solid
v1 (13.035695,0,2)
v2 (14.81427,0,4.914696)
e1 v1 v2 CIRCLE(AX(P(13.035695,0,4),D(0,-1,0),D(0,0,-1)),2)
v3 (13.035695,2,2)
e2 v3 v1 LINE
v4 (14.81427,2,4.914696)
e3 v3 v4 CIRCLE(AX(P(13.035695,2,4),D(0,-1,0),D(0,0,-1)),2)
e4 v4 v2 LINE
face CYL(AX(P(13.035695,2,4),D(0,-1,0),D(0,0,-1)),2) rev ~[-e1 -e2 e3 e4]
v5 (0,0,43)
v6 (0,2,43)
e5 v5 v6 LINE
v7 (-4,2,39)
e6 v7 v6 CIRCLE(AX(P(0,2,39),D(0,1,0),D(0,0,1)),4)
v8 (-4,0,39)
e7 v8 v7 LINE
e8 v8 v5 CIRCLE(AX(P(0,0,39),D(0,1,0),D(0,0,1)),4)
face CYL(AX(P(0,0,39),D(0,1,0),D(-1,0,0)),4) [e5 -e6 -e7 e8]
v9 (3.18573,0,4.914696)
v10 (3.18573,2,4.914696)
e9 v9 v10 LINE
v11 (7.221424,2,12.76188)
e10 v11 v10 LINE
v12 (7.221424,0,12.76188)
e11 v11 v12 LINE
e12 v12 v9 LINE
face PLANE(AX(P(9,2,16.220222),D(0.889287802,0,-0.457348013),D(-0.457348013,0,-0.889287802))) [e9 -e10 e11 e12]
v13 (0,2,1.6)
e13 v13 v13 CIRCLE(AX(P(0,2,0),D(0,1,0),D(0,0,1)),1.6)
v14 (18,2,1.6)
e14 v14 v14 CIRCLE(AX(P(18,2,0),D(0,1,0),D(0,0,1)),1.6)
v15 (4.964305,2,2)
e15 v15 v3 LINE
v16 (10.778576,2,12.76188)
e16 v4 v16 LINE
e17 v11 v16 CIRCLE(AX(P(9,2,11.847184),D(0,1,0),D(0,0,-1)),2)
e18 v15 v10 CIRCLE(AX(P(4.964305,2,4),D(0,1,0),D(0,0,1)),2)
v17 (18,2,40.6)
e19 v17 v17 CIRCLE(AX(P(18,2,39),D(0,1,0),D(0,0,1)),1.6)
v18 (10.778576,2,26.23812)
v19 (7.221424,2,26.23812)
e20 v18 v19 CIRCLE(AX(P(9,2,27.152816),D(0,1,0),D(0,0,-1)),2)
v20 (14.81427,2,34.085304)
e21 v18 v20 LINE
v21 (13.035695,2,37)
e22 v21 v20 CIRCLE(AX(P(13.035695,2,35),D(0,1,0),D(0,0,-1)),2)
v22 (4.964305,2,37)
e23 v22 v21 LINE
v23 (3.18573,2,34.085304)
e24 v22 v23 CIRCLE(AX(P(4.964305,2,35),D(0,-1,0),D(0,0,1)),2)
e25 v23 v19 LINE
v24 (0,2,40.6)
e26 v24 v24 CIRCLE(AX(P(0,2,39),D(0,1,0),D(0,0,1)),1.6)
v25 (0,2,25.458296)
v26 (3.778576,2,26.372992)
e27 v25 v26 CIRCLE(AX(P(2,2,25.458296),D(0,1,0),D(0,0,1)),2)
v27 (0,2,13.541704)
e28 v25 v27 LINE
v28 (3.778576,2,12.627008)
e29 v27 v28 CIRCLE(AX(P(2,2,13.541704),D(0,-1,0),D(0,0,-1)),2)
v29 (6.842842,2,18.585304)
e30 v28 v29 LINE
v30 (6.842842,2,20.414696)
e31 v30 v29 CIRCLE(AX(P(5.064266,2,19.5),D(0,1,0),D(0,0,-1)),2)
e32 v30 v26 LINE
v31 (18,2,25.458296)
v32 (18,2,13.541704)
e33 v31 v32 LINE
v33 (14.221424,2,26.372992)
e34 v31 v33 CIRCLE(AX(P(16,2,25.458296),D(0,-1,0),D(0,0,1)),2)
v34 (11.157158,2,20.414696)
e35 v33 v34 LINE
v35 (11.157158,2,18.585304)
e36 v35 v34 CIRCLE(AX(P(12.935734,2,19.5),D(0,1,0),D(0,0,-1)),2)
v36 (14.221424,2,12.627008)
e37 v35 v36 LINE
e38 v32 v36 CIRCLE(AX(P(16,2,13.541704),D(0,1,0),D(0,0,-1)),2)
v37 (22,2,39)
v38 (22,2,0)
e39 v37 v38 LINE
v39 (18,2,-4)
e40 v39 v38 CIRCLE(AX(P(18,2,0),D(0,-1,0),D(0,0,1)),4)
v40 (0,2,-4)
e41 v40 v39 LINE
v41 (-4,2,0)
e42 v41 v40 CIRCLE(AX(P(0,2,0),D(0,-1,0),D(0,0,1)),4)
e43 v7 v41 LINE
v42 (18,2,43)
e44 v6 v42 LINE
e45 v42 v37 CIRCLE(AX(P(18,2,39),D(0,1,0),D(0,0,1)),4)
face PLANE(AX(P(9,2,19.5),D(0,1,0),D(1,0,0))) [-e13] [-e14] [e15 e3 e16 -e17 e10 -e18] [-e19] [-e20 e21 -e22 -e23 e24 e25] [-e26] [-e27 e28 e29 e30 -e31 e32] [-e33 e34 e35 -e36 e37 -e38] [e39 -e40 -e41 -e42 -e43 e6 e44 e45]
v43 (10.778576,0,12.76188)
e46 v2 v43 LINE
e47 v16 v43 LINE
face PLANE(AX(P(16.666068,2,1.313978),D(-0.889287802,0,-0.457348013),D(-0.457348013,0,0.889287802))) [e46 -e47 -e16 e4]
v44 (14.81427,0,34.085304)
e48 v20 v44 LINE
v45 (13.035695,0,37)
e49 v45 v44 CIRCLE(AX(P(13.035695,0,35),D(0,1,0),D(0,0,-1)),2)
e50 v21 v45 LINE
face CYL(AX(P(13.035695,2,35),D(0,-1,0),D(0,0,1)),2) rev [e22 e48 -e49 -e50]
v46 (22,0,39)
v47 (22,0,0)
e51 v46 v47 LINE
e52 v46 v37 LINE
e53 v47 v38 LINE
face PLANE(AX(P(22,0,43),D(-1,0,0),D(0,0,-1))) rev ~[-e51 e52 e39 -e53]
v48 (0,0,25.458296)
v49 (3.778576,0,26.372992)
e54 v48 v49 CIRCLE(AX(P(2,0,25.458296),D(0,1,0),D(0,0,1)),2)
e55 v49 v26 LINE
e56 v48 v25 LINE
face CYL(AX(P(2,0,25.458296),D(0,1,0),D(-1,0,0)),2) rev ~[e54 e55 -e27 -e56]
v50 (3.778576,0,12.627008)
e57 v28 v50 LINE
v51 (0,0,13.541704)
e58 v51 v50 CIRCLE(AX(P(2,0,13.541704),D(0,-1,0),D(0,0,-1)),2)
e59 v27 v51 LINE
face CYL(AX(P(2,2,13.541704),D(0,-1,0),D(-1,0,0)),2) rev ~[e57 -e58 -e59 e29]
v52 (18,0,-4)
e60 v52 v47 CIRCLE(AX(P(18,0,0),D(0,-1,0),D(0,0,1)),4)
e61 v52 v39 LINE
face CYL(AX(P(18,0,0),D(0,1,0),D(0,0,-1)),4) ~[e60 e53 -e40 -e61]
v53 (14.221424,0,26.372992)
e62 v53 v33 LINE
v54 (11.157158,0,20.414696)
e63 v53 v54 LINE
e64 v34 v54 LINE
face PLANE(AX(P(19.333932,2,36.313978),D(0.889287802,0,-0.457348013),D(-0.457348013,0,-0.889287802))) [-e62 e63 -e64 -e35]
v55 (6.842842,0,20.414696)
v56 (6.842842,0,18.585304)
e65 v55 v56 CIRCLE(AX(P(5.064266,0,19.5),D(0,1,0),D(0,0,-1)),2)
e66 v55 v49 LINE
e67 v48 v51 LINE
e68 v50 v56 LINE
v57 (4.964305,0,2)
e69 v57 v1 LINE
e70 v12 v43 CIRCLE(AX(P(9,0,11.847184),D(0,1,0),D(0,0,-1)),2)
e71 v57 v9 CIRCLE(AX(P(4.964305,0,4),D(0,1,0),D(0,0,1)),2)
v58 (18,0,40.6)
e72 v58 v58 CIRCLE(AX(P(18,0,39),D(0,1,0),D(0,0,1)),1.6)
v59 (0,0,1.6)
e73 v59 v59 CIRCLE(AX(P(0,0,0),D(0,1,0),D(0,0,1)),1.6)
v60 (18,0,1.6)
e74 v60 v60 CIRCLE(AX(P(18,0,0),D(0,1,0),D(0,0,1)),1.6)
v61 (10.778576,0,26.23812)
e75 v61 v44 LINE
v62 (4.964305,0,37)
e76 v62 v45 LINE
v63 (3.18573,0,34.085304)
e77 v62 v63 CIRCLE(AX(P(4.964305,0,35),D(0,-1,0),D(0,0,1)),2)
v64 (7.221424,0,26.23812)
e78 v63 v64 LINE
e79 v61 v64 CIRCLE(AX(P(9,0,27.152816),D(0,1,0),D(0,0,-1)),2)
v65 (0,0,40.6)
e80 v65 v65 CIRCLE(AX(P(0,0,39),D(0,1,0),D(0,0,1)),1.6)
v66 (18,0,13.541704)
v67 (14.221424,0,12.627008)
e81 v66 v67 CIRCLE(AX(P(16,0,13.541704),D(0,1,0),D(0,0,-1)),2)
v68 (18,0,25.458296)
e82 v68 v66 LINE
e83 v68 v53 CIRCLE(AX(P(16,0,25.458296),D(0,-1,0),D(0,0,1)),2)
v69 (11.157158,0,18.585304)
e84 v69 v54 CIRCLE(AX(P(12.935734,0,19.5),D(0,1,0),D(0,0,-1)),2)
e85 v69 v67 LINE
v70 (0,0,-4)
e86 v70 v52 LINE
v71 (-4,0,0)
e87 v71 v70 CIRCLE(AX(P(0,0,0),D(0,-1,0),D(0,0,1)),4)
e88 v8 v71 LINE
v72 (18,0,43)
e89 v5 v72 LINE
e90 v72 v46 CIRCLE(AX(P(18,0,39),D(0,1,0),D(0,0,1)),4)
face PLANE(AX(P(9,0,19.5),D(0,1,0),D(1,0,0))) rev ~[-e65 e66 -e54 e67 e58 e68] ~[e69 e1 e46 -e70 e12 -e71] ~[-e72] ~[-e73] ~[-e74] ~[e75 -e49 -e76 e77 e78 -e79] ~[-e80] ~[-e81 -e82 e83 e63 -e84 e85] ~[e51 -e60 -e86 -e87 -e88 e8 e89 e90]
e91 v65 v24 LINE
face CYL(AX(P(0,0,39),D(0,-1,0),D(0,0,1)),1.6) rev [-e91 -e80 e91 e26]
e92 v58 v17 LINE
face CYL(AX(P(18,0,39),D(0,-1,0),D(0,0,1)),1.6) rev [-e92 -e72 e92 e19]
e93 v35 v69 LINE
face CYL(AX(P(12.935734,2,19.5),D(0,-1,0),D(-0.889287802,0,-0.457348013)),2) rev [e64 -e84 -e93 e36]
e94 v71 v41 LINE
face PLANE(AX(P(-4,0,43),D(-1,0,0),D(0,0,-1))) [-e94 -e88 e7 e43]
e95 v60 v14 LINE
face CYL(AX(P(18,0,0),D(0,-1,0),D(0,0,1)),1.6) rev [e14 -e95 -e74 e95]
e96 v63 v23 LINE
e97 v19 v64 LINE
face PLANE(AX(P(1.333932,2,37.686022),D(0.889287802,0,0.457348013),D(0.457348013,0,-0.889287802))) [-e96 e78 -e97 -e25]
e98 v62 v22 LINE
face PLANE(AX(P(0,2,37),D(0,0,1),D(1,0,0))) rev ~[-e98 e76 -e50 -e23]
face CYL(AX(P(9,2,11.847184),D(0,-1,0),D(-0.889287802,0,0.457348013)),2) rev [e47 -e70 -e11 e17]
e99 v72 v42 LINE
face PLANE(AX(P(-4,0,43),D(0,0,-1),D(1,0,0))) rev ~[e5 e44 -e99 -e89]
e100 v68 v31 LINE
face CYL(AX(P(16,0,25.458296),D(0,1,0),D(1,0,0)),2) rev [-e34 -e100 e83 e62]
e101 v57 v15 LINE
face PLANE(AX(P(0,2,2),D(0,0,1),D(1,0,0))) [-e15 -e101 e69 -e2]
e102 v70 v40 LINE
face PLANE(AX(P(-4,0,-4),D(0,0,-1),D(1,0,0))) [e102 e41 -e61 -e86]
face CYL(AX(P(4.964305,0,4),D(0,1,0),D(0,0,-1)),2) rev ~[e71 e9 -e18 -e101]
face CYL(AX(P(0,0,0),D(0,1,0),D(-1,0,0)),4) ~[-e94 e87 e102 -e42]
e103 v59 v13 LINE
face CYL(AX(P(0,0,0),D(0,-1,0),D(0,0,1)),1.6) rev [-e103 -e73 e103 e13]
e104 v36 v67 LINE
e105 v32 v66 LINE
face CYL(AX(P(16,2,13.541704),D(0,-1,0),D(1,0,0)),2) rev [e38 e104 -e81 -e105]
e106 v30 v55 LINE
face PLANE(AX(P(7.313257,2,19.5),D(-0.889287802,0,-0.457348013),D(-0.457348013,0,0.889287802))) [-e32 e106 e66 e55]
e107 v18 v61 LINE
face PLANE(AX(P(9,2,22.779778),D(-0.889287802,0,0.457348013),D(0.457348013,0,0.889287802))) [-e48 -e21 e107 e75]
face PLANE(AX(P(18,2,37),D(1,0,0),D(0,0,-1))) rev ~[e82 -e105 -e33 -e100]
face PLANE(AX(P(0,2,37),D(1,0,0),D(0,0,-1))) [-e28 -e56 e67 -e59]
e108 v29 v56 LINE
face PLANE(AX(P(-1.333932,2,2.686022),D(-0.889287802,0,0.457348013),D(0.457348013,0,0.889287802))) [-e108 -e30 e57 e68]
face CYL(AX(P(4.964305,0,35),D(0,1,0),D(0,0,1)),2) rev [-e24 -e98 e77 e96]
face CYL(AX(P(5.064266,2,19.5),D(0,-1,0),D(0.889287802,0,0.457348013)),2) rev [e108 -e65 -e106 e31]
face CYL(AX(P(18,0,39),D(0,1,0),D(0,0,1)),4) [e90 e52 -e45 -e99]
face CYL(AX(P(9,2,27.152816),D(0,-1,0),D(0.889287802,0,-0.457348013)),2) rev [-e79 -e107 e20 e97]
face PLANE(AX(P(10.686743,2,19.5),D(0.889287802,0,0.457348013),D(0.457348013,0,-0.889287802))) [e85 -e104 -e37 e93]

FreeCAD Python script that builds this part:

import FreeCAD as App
import Part
import Sketcher
Q = App.Units.Quantity


def edges_at(feature, points):
    """Names of the edges that pass closest to the given points."""
    edges = feature.Shape.Edges
    near = lambda p: min(range(len(edges)), key=lambda i: edges[i].distToShape(Part.Vertex(*p))[0])
    return sorted({f"Edge{near(p) + 1}" for p in points})


def add_polygon(sketch, points):
    """Adds a closed chain of lines whose ends are joined by coincident constraints."""
    first, n = sketch.GeometryCount, len(points)
    for a, b in zip(points, points[1:] + points[:1]):
        sketch.addGeometry(Part.LineSegment(App.Vector(*a, 0), App.Vector(*b, 0)), False)
    for i in range(n):
        sketch.addConstraint(Sketcher.Constraint("Coincident", first + i, 2, first + (i + 1) % n, 1))

doc = App.newDocument("Part")
params = doc.addObject("Spreadsheet::Sheet", "Params")
for row, (alias, value) in enumerate([
    ("sketch1_diameter", "3.2 mm"),
    ("sketch1_width", "26 mm"),
    ("sketch1_height", "47 mm"),
    ("pad1_length", "2 mm"),
    ("fillet_radius", "4 mm"),
    ("sketch2_width", "18 mm"),
    ("sketch2_height", "35 mm"),
    ("pocket1_length", "2 mm"),
    ("sketch3_length", "3 mm"),
    ("pad2_length", "2 mm"),
    ("fillet2_radius", "2 mm"),
], start=1):
    params.set(f"A{row}", alias)
    params.set(f"B{row}", "=" + value)
    params.setAlias(f"B{row}", alias)

body = doc.addObject("PartDesign::Body", "Body")

# Sketch on XZ plane
sketch1 = doc.addObject("Sketcher::SketchObject", "Sketch")
body.addObject(sketch1)
sketch1.AttachmentSupport = (doc.XZ_Plane, [""])
sketch1.MapMode = "FlatFace"
add_polygon(sketch1, [(-4, -4), (-4, 43), (22, 43), (22, -4)])  # lines 0-3
sketch1.addGeometry(Part.Circle(App.Vector(0, 39, 0), App.Vector(0, 0, 1), 1.6), False)  # 4
sketch1.addGeometry(Part.Circle(App.Vector(18, 39, 0), App.Vector(0, 0, 1), 1.6), False)  # 5
sketch1.addGeometry(Part.Circle(App.Vector(0, 0, 0), App.Vector(0, 0, 1), 1.6), False)  # 6
sketch1.addGeometry(Part.Circle(App.Vector(18, 0, 0), App.Vector(0, 0, 1), 1.6), False)  # 7
sketch1.addConstraint([
    Sketcher.Constraint("Vertical", 0),
    Sketcher.Constraint("Horizontal", 1),
    Sketcher.Constraint("Vertical", 2),
    Sketcher.Constraint("Horizontal", 3),
    Sketcher.Constraint("Coincident", 6, 3, -1, 1),
    Sketcher.Constraint("Equal", 4, 5),
    Sketcher.Constraint("Equal", 5, 6),
    Sketcher.Constraint("Equal", 6, 7),
    Sketcher.Constraint("PointOnObject", 4, 3, -2),
    Sketcher.Constraint("PointOnObject", 7, 3, -1),
    Sketcher.Constraint("Horizontal", 4, 3, 5, 3),
    Sketcher.Constraint("Vertical", 5, 3, 7, 3),
    Sketcher.Constraint("Diameter", 4, Q("3.2 mm")),
    Sketcher.Constraint("DistanceX", 1, 1, 1, 2, Q("26 mm")),
    Sketcher.Constraint("DistanceY", 0, 1, 0, 2, Q("47 mm")),
    Sketcher.Constraint("DistanceY", -1, 1, 4, 3, Q("39 mm")),
    Sketcher.Constraint("DistanceX", -1, 1, 5, 3, Q("18 mm")),
    Sketcher.Constraint("DistanceX", 0, 2, -1, 1, Q("4 mm")),
    Sketcher.Constraint("DistanceY", -1, 1, 0, 2, Q("43 mm")),
])
sketch1.setExpression("Constraints[16]", "Params.sketch1_diameter")
sketch1.setExpression("Constraints[17]", "Params.sketch1_width")
sketch1.setExpression("Constraints[18]", "Params.sketch1_height")
pad1 = doc.addObject("PartDesign::Pad", "Pad")
body.addObject(pad1)
pad1.Profile = sketch1
pad1.setExpression("Length", "Params.pad1_length")
pad1.Reversed = True
doc.recompute()

fillet = doc.addObject("PartDesign::Fillet", "Fillet")
body.addObject(fillet)
fillet.Base = (pad1, edges_at(pad1, [
    (-4, 1, -4),
    (22, 1, -4),
    (22, 1, 43),
    (-4, 1, 43),
]))
fillet.setExpression("Radius", "Params.fillet_radius")

# Sketch on XZ plane
sketch2 = doc.addObject("Sketcher::SketchObject", "Sketch001")
body.addObject(sketch2)
sketch2.AttachmentSupport = (doc.XZ_Plane, [""])
sketch2.MapMode = "FlatFace"
sketch2.AttachmentOffset = App.Placement(App.Vector(0, 0, -2), App.Rotation())
add_polygon(sketch2, [(0, 2), (0, 37), (18, 37), (18, 2)])  # lines 0-3
sketch2.addConstraint([
    Sketcher.Constraint("Vertical", 0),
    Sketcher.Constraint("Horizontal", 1),
    Sketcher.Constraint("Vertical", 2),
    Sketcher.Constraint("Horizontal", 3),
    Sketcher.Constraint("PointOnObject", 0, 2, -2),
    Sketcher.Constraint("DistanceX", 1, 1, 1, 2, Q("18 mm")),
    Sketcher.Constraint("DistanceY", 0, 1, 0, 2, Q("35 mm")),
    Sketcher.Constraint("DistanceY", -1, 1, 0, 2, Q("37 mm")),
])
sketch2.setExpression("Constraints[9]", "Params.sketch2_width")
sketch2.setExpression("Constraints[10]", "Params.sketch2_height")
pocket1 = doc.addObject("PartDesign::Pocket", "Pocket")
body.addObject(pocket1)
pocket1.Profile = sketch2
pocket1.setExpression("Length", "Params.pocket1_length")
pocket1.Reversed = True

# Sketch on XZ plane
sketch3 = doc.addObject("Sketcher::SketchObject", "Sketch002")
body.addObject(sketch3)
sketch3.AttachmentSupport = (doc.XZ_Plane, [""])
sketch3.MapMode = "FlatFace"
sketch3.AttachmentOffset = App.Placement(App.Vector(0, 0, -2), App.Rotation())
add_polygon(sketch3, [(1.3, 1.3), (-1.3, 2.7), (7.3, 19.5), (-1.3, 36.3), (1.3, 37.7), (9, 22.8), (16.7, 37.7), (19.3, 36.3), (10.7, 19.5), (19.3, 2.7), (16.7, 1.3), (9, 16.2)])  # lines 0-11
sketch3.addConstraint([
    Sketcher.Constraint("Perpendicular", 0, 1),
    Sketcher.Constraint("Perpendicular", 2, 3),
    Sketcher.Constraint("Perpendicular", 3, 4),
    Sketcher.Constraint("Parallel", 1, 5),
    Sketcher.Constraint("Perpendicular", 5, 6),
    Sketcher.Constraint("Perpendicular", 6, 7),
    Sketcher.Constraint("Parallel", 4, 8),
    Sketcher.Constraint("Perpendicular", 8, 9),
    Sketcher.Constraint("Perpendicular", 9, 10),
    Sketcher.Constraint("Parallel", 7, 11),
    Sketcher.Constraint("Horizontal", 3, 2, 5, 2),
    Sketcher.Constraint("Horizontal", 2, 2, 6, 2),
    Sketcher.Constraint("Horizontal", 1, 2, 7, 2),
    Sketcher.Constraint("Horizontal", 0, 2, 8, 2),
    Sketcher.Constraint("Horizontal", 9, 2, 11, 2),
    Sketcher.Constraint("Vertical", 0, 2, 2, 2),
    Sketcher.Constraint("Vertical", 6, 2, 8, 2),
    Sketcher.Constraint("Vertical", 5, 2, 9, 2),
    Sketcher.Constraint("Distance", 0, Q("3 mm")),
    Sketcher.Constraint("DistanceX", -1, 1, 4, 2, Q("9 mm")),
    Sketcher.Constraint("DistanceY", 0, 2, 3, 2, Q("35 mm")),
    Sketcher.Constraint("DistanceX", 2, 2, 5, 2, Q("18 mm")),
    Sketcher.Constraint("DistanceY", -1, 1, 1, 2, Q("19.5 mm")),
    Sketcher.Constraint("Distance", 4, Q("16.762002 mm")),
])
sketch3.setExpression("Constraints[30]", "Params.sketch3_length")
pad2 = doc.addObject("PartDesign::Pad", "Pad001")
body.addObject(pad2)
pad2.Profile = sketch3
pad2.setExpression("Length", "Params.pad2_length")
doc.recompute()

fillet2 = doc.addObject("PartDesign::Fillet", "Fillet001")
body.addObject(fillet2)
fillet2.Base = (pad2, edges_at(pad2, [
    (1.687, 1, 37),
    (16.313, 1, 37),
    (18, 1, 5.28),
    (18, 1, 33.72),
    (16.313, 1, 2),
    (1.687, 1, 2),
    (0, 1, 33.72),
    (0, 1, 5.28),
    (7.313, 1, 19.5),
    (9, 1, 16.22),
    (10.687, 1, 19.5),
    (9, 1, 22.78),
]))
fillet2.setExpression("Radius", "Params.fillet2_radius")

doc.recompute()
